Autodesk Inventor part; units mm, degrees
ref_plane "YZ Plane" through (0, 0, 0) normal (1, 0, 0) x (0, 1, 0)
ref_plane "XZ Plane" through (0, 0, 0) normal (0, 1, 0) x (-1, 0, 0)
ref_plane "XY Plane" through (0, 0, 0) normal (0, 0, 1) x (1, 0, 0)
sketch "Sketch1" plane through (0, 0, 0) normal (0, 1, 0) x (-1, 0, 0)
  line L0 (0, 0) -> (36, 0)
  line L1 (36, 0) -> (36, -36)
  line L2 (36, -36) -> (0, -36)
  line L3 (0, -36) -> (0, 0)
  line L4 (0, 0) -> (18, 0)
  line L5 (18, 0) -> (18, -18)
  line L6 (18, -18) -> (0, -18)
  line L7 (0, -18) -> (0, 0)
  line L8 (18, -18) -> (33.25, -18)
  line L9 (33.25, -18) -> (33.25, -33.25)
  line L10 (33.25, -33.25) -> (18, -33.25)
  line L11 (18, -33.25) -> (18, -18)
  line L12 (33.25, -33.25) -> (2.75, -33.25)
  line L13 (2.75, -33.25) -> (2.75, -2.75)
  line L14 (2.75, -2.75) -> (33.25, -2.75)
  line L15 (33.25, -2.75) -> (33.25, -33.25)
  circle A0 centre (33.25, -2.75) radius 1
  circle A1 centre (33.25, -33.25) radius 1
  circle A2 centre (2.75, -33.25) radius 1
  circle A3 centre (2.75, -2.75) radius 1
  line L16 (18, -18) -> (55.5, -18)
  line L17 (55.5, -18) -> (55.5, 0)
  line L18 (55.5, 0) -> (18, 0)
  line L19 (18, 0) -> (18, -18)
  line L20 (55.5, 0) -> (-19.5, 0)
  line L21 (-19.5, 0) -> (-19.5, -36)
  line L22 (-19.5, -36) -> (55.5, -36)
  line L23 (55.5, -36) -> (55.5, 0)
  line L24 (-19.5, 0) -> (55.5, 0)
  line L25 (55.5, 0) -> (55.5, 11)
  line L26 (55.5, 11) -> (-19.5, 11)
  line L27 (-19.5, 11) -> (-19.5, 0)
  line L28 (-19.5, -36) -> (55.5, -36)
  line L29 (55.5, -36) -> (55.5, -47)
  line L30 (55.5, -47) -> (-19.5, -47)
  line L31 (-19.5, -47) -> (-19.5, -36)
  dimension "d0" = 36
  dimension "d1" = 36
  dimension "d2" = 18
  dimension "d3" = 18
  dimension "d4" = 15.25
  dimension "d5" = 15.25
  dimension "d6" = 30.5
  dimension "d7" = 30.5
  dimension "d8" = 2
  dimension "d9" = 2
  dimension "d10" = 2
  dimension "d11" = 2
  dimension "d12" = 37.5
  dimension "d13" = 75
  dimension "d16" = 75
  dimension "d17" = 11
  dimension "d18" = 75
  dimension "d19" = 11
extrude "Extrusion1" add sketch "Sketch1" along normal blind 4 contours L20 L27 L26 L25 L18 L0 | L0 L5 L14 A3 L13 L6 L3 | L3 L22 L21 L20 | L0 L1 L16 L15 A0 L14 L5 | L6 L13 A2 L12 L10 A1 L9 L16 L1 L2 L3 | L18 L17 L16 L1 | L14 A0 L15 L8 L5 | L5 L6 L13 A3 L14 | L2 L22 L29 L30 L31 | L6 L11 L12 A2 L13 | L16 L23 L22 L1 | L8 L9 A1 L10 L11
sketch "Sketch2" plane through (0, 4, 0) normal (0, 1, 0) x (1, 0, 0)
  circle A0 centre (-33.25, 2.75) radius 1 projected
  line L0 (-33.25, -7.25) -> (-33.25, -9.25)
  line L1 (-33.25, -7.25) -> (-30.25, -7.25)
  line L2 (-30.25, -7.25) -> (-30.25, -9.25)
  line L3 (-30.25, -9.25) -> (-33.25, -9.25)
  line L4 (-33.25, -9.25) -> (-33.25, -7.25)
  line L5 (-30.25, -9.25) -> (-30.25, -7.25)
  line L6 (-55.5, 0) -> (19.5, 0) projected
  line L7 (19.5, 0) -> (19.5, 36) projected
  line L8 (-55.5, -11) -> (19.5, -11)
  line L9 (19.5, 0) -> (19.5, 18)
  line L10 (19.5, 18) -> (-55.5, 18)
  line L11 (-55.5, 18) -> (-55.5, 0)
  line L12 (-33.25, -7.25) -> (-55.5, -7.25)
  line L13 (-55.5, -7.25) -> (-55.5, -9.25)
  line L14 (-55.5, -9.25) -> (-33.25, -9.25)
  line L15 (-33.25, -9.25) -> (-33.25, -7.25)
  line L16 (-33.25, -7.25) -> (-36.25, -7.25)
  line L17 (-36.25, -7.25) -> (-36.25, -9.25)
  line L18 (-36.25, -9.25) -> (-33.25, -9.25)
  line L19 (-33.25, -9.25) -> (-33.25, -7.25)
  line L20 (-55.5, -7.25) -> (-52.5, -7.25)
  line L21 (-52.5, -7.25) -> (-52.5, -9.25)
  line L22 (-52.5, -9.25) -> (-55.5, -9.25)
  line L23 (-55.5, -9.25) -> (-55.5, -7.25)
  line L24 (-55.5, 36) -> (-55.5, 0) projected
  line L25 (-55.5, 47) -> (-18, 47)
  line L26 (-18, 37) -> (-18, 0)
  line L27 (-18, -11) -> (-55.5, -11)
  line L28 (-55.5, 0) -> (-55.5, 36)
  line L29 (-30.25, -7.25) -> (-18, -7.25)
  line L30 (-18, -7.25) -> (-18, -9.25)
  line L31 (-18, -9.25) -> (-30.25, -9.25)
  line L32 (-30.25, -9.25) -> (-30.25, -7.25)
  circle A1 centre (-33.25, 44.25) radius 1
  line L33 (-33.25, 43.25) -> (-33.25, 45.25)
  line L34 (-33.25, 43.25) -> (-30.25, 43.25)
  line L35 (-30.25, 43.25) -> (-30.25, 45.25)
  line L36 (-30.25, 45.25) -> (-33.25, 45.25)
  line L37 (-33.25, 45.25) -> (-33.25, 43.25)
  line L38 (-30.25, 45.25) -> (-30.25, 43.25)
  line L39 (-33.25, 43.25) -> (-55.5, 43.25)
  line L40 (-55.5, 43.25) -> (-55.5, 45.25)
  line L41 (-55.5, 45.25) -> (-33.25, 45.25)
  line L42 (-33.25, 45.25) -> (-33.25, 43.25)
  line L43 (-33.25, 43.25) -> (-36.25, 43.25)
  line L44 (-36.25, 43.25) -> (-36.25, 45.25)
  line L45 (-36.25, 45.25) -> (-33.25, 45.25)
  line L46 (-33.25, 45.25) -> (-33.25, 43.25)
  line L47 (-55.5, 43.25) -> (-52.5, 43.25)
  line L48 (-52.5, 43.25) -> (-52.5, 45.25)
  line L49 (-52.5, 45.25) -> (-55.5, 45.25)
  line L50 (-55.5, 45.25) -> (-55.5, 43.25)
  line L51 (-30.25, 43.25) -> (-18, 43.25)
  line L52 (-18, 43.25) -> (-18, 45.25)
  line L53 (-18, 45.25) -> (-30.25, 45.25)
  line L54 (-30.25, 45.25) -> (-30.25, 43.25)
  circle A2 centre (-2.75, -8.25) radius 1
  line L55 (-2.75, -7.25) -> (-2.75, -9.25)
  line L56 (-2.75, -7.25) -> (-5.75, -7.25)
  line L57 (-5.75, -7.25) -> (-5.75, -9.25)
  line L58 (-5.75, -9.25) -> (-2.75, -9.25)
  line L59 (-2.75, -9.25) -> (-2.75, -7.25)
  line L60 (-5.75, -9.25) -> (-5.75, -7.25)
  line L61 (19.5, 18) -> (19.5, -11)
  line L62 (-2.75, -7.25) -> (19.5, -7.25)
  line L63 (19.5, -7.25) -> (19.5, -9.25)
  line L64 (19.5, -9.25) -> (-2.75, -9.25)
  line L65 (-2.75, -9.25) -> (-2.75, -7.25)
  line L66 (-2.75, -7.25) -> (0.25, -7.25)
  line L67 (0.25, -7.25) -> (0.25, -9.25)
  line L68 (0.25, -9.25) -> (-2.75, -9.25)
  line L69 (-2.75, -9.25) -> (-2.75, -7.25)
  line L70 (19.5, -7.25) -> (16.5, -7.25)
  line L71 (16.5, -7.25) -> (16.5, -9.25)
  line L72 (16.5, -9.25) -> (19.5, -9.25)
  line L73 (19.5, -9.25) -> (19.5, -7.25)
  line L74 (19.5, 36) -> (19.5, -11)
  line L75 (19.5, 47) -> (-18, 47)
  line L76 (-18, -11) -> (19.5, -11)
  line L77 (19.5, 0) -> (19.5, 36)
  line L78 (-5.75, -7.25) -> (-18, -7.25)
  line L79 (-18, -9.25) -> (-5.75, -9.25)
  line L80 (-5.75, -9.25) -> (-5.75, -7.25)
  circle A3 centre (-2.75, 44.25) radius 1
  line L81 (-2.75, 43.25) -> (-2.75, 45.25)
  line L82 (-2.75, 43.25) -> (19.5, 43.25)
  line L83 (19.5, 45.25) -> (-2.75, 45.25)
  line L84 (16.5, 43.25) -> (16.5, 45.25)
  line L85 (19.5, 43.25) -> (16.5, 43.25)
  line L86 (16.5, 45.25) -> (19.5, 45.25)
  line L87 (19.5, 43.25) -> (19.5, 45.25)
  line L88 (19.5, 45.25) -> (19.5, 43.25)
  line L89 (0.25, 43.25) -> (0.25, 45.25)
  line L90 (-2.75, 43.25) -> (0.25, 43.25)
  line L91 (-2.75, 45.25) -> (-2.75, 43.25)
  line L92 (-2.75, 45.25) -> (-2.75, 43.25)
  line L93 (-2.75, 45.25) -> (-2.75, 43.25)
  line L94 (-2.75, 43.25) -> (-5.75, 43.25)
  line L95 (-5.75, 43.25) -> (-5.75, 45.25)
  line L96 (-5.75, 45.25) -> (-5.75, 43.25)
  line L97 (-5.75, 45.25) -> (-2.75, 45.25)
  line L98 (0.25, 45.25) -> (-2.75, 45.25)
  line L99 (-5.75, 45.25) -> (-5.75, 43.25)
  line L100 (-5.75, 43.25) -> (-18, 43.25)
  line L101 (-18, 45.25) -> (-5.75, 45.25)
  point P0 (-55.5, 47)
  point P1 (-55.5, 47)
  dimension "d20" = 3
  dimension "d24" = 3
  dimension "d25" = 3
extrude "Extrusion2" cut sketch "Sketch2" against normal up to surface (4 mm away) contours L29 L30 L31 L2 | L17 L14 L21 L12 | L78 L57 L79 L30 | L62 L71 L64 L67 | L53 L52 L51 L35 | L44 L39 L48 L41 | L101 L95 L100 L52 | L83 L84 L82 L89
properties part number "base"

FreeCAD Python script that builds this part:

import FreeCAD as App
import Part
import Sketcher
from FreeCAD import Vector


def add_polygon(sketch, points):
    """Adds a closed chain of lines whose ends are joined by coincident constraints."""
    first, n = sketch.GeometryCount, len(points)
    for a, b in zip(points, points[1:] + points[:1]):
        sketch.addGeometry(Part.LineSegment(App.Vector(*a, 0), App.Vector(*b, 0)), False)
    for i in range(n):
        sketch.addConstraint(Sketcher.Constraint("Coincident", first + i, 2, first + (i + 1) % n, 1))

doc = App.newDocument("Part")
body = doc.addObject("PartDesign::Body", "Body")

# Sketch on XZ plane
sketch1 = doc.addObject("Sketcher::SketchObject", "Sketch")
body.addObject(sketch1)
sketch1.AttachmentSupport = (doc.XZ_Plane, [""])
sketch1.MapMode = "FlatFace"
add_polygon(sketch1, [(19.5, 11), (19.5, -47), (-55.5, -47), (-55.5, 11)])  # lines 0-3
sketch1.addGeometry(Part.Circle(Vector(-33.25, -2.75, 0), Vector(0, 0, 1), 1), False)  # 4
sketch1.addGeometry(Part.Circle(Vector(-2.75, -2.75, 0), Vector(0, 0, 1), 1), False)  # 5
sketch1.addGeometry(Part.Circle(Vector(-2.75, -33.25, 0), Vector(0, 0, 1), 1), False)  # 6
sketch1.addGeometry(Part.Circle(Vector(-33.25, -33.25, 0), Vector(0, 0, 1), 1), False)  # 7
sketch1.addConstraint(Sketcher.Constraint("Vertical", 0))
sketch1.addConstraint(Sketcher.Constraint("Horizontal", 1))
sketch1.addConstraint(Sketcher.Constraint("Vertical", 2))
sketch1.addConstraint(Sketcher.Constraint("Horizontal", 3))
sketch1.addConstraint(Sketcher.Constraint("Equal", 4, 5))
sketch1.addConstraint(Sketcher.Constraint("Equal", 5, 6))
sketch1.addConstraint(Sketcher.Constraint("Equal", 6, 7))
sketch1.addConstraint(Sketcher.Constraint("Horizontal", 4, 3, 5, 3))
sketch1.addConstraint(Sketcher.Constraint("Horizontal", 6, 3, 7, 3))
sketch1.addConstraint(Sketcher.Constraint("Vertical", 5, 3, 6, 3))
sketch1.addConstraint(Sketcher.Constraint("Vertical", 4, 3, 7, 3))
sketch1.addConstraint(Sketcher.Constraint("Diameter", 4, 2.0))
sketch1.addConstraint(Sketcher.Constraint("DistanceX", 1, 2, 1, 1, 75.0))
sketch1.addConstraint(Sketcher.Constraint("DistanceY", -1, 1, 2, 2, 11.0))
sketch1.addConstraint(Sketcher.Constraint("DistanceX", 4, 3, 5, 3, 30.5))
sketch1.addConstraint(Sketcher.Constraint("DistanceY", 6, 3, 5, 3, 30.5))
sketch1.addConstraint(Sketcher.Constraint("DistanceY", 0, 2, 0, 1, 58.0))
sketch1.addConstraint(Sketcher.Constraint("DistanceX", -1, 1, 0, 2, 19.5))
sketch1.addConstraint(Sketcher.Constraint("DistanceX", 4, 3, -1, 1, 33.25))
sketch1.addConstraint(Sketcher.Constraint("DistanceY", 4, 3, -1, 1, 2.75))
pad1 = doc.addObject("PartDesign::Pad", "Pad")
body.addObject(pad1)
pad1.Profile = sketch1
pad1.Length = 4
pad1.Reversed = True

# Sketch on XZ plane
sketch2 = doc.addObject("Sketcher::SketchObject", "Sketch001")
body.addObject(sketch2)
sketch2.AttachmentSupport = (doc.XZ_Plane, [""])
sketch2.MapMode = "FlatFace"
sketch2.AttachmentOffset = App.Placement(Vector(0, 0, -4), App.Rotation())
add_polygon(sketch2, [(-30.25, 7.25), (-30.25, 9.25), (-5.75, 9.25), (-5.75, 7.25)])  # lines 0-3
add_polygon(sketch2, [(-36.25, 9.25), (-36.25, 7.25), (-52.5, 7.25), (-52.5, 9.25)])  # lines 4-7
add_polygon(sketch2, [(16.5, 7.25), (0.25, 7.25), (0.25, 9.25), (16.5, 9.25)])  # lines 8-11
add_polygon(sketch2, [(-30.25, -45.25), (-30.25, -43.25), (-5.75, -43.25), (-5.75, -45.25)])  # lines 12-15
add_polygon(sketch2, [(-36.25, -43.25), (-36.25, -45.25), (-52.5, -45.25), (-52.5, -43.25)])  # lines 16-19
add_polygon(sketch2, [(16.5, -45.25), (0.25, -45.25), (0.25, -43.25), (16.5, -43.25)])  # lines 20-23
sketch2.addConstraint(Sketcher.Constraint("Vertical", 0))
sketch2.addConstraint(Sketcher.Constraint("Horizontal", 1))
sketch2.addConstraint(Sketcher.Constraint("Vertical", 2))
sketch2.addConstraint(Sketcher.Constraint("Horizontal", 3))
sketch2.addConstraint(Sketcher.Constraint("Vertical", 4))
sketch2.addConstraint(Sketcher.Constraint("Horizontal", 5))
sketch2.addConstraint(Sketcher.Constraint("Vertical", 6))
sketch2.addConstraint(Sketcher.Constraint("Horizontal", 7))
sketch2.addConstraint(Sketcher.Constraint("Horizontal", 8))
sketch2.addConstraint(Sketcher.Constraint("Vertical", 9))
sketch2.addConstraint(Sketcher.Constraint("Horizontal", 10))
sketch2.addConstraint(Sketcher.Constraint("Vertical", 11))
sketch2.addConstraint(Sketcher.Constraint("Vertical", 12))
sketch2.addConstraint(Sketcher.Constraint("Horizontal", 13))
sketch2.addConstraint(Sketcher.Constraint("Vertical", 14))
sketch2.addConstraint(Sketcher.Constraint("Horizontal", 15))
sketch2.addConstraint(Sketcher.Constraint("Vertical", 16))
sketch2.addConstraint(Sketcher.Constraint("Horizontal", 17))
sketch2.addConstraint(Sketcher.Constraint("Vertical", 18))
sketch2.addConstraint(Sketcher.Constraint("Horizontal", 19))
sketch2.addConstraint(Sketcher.Constraint("Horizontal", 20))
sketch2.addConstraint(Sketcher.Constraint("Vertical", 21))
sketch2.addConstraint(Sketcher.Constraint("Horizontal", 22))
sketch2.addConstraint(Sketcher.Constraint("Vertical", 23))
sketch2.addConstraint(Sketcher.Constraint("Horizontal", 3, 2, 4, 2))
sketch2.addConstraint(Sketcher.Constraint("Horizontal", 1, 2, 6, 2))
sketch2.addConstraint(Sketcher.Constraint("Horizontal", 5, 2, 8, 2))
sketch2.addConstraint(Sketcher.Constraint("Horizontal", 7, 2, 9, 2))
sketch2.addConstraint(Sketcher.Constraint("Horizontal", 15, 2, 16, 2))
sketch2.addConstraint(Sketcher.Constraint("Horizontal", 13, 2, 18, 2))
sketch2.addConstraint(Sketcher.Constraint("Horizontal", 17, 2, 20, 2))
sketch2.addConstraint(Sketcher.Constraint("Horizontal", 19, 2, 21, 2))
sketch2.addConstraint(Sketcher.Constraint("Vertical", 3, 2, 12, 2))
sketch2.addConstraint(Sketcher.Constraint("Vertical", 2, 2, 13, 2))
sketch2.addConstraint(Sketcher.Constraint("Vertical", 7, 2, 16, 2))
sketch2.addConstraint(Sketcher.Constraint("Vertical", 6, 2, 17, 2))
sketch2.addConstraint(Sketcher.Constraint("Vertical", 9, 2, 20, 2))
sketch2.addConstraint(Sketcher.Constraint("Vertical", 11, 2, 22, 2))
sketch2.addConstraint(Sketcher.Constraint("Equal", 7, 8))
sketch2.addConstraint(Sketcher.Constraint("Equal", 11, 12))
sketch2.addConstraint(Sketcher.Constraint("DistanceY", 0, 1, 0, 2, 2.0))
sketch2.addConstraint(Sketcher.Constraint("DistanceX", 1, 1, 1, 2, 24.5))
sketch2.addConstraint(Sketcher.Constraint("DistanceX", 4, 2, 3, 2, 6.0))
sketch2.addConstraint(Sketcher.Constraint("DistanceX", 2, 2, 8, 2, 6.0))
sketch2.addConstraint(Sketcher.Constraint("DistanceX", 5, 2, 5, 1, 16.25))
sketch2.addConstraint(Sketcher.Constraint("DistanceX", 5, 2, -1, 1, 52.5))
sketch2.addConstraint(Sketcher.Constraint("DistanceY", 12, 2, 3, 2, 50.5))
sketch2.addConstraint(Sketcher.Constraint("DistanceY", -1, 1, 0, 2, 9.25))
pocket1 = doc.addObject("PartDesign::Pocket", "Pocket")
body.addObject(pocket1)
pocket1.Profile = sketch2
pocket1.Length = 4
pocket1.Reversed = True

doc.recompute()
